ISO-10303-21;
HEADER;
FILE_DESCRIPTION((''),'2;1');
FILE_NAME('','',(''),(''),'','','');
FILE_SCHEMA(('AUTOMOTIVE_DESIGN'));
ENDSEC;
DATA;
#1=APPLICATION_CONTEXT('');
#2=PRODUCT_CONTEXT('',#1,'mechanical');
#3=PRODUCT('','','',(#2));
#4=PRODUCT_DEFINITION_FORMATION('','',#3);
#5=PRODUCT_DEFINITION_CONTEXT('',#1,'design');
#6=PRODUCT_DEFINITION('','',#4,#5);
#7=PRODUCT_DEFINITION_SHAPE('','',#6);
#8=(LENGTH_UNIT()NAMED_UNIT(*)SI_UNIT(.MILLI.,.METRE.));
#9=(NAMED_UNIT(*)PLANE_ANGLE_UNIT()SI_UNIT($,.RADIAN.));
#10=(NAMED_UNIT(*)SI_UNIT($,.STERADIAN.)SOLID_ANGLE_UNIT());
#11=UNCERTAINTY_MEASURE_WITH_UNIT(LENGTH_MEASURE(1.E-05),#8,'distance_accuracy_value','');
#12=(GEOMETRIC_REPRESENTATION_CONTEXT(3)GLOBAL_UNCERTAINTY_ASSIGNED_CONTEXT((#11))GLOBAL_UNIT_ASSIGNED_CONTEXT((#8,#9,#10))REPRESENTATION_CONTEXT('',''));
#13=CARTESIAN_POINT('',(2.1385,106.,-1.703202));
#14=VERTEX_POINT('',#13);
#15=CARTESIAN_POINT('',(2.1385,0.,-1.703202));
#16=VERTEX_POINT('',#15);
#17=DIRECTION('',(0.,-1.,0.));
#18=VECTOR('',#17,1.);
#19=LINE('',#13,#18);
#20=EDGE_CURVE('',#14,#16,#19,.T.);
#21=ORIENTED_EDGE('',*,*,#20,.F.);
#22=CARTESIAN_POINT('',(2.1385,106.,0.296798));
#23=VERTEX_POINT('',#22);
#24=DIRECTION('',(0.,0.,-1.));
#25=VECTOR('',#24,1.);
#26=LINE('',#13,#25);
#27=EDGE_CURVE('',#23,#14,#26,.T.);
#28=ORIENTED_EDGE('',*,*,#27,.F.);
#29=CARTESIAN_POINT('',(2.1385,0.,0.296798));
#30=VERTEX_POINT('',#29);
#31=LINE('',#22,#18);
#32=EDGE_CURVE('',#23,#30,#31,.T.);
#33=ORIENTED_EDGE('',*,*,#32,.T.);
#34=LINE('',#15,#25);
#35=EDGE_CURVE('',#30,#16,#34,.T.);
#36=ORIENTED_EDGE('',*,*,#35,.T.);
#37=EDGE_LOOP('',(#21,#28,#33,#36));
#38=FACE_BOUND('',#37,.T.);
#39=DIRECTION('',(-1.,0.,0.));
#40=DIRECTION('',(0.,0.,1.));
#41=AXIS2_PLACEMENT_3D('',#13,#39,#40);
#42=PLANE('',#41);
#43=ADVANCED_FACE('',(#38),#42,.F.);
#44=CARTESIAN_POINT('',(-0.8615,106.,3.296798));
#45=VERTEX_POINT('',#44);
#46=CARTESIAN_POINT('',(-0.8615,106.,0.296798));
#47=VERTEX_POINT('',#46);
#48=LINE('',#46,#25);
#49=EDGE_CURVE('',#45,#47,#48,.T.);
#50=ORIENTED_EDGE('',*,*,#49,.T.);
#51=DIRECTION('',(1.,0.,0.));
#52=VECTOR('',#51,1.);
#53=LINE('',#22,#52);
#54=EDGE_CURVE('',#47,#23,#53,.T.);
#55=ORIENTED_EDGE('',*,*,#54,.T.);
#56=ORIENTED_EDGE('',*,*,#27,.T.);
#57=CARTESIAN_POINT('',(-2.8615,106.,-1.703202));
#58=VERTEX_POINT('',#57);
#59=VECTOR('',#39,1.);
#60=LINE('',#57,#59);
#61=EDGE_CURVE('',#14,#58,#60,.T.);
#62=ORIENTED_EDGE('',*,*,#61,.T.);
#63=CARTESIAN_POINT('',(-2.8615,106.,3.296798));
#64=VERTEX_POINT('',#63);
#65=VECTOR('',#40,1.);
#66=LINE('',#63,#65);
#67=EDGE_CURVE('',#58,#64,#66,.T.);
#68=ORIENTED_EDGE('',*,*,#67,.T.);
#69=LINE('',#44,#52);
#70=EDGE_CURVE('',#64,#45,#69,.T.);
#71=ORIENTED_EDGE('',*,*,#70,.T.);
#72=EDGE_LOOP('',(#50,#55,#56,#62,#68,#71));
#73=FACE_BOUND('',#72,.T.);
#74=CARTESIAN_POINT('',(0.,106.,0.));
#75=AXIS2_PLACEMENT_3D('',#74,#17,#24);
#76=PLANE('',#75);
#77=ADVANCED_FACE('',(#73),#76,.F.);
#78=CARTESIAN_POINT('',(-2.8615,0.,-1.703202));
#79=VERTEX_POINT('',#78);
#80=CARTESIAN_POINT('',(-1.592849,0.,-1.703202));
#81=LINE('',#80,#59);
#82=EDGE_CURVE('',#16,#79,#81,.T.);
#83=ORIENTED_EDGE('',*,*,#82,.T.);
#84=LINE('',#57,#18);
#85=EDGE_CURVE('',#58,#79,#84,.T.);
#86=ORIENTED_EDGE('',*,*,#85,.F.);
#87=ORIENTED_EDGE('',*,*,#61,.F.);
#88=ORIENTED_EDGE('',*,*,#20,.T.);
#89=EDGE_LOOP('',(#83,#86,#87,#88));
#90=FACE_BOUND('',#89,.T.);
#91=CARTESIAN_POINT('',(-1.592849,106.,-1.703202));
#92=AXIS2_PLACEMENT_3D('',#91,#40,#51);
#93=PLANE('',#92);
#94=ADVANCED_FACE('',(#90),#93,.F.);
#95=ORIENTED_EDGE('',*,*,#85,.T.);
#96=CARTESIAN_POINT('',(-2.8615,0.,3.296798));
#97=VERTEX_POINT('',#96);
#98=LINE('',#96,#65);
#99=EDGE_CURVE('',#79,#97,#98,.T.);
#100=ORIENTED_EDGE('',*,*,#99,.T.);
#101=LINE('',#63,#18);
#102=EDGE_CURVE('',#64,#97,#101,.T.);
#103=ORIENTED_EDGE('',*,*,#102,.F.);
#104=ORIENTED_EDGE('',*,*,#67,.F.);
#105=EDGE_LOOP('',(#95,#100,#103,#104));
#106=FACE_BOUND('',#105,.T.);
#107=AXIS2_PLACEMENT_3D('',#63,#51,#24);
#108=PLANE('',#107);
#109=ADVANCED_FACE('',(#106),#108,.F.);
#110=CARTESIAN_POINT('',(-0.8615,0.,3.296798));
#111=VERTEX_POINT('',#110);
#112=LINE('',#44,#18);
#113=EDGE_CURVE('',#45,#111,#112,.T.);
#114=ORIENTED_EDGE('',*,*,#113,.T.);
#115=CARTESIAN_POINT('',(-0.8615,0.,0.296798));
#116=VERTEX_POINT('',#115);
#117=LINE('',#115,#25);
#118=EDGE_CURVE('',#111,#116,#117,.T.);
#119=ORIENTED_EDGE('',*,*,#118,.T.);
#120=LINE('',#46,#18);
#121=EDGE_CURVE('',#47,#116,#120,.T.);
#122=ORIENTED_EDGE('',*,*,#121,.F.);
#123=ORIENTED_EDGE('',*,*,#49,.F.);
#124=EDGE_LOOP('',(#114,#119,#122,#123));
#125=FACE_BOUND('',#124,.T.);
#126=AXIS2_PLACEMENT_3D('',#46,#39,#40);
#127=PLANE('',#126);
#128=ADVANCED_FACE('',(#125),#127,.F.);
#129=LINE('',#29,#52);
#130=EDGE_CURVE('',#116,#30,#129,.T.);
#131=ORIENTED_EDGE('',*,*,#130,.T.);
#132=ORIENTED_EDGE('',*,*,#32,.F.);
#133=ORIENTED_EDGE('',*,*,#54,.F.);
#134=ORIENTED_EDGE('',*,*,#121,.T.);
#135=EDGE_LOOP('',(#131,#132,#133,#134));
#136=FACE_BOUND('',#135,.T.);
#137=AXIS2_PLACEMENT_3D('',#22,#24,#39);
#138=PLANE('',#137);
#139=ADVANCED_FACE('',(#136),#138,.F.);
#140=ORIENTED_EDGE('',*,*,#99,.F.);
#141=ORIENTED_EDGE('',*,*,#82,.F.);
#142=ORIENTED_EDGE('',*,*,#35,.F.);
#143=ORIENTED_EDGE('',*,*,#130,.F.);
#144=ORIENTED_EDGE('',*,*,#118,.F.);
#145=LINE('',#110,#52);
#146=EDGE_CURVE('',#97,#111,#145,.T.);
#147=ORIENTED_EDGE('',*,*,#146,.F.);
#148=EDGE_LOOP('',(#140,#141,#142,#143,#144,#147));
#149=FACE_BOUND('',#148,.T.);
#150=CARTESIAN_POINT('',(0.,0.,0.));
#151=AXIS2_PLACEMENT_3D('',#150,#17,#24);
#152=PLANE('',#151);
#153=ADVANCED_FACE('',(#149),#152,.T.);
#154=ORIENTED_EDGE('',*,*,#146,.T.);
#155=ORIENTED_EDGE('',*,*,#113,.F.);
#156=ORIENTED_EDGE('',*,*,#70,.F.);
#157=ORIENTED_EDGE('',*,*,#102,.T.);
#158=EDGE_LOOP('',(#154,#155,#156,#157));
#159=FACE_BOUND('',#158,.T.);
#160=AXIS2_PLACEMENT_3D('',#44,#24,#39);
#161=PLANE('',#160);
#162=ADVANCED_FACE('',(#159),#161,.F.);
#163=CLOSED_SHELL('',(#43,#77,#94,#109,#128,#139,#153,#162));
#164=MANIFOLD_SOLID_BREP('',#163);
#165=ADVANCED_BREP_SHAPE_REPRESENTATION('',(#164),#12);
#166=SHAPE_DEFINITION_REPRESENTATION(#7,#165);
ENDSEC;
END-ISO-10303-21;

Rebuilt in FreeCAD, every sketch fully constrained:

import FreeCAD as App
import Part
import Sketcher

V = App.Vector
Q = App.Units.Quantity

doc = App.newDocument("Part")
body = doc.addObject("PartDesign::Body", "Body")

sketch1 = body.newObject("Sketcher::SketchObject", "Sketch")
sketch1.AttachmentSupport = (doc.getObject("XZ_Plane"), [""])
sketch1.MapMode = "FlatFace"
sketch1.addGeometry([
    Part.LineSegment(V(2.1, -1.7, 0), V(-2.9, -1.7, 0)),
    Part.LineSegment(V(-2.9, -1.7, 0), V(-2.9, 3.3, 0)),
    Part.LineSegment(V(-2.9, 3.3, 0), V(-0.9, 3.3, 0)),
    Part.LineSegment(V(-0.9, 3.3, 0), V(-0.9, 0.3, 0)),
    Part.LineSegment(V(-0.9, 0.3, 0), V(2.1, 0.3, 0)),
    Part.LineSegment(V(2.1, 0.3, 0), V(2.1, -1.7, 0)),
], False)
sketch1.addConstraint([
    Sketcher.Constraint("Coincident", 0, 2, 1, 1),
    Sketcher.Constraint("Coincident", 1, 2, 2, 1),
    Sketcher.Constraint("Coincident", 2, 2, 3, 1),
    Sketcher.Constraint("Coincident", 3, 2, 4, 1),
    Sketcher.Constraint("Coincident", 4, 2, 5, 1),
    Sketcher.Constraint("Coincident", 5, 2, 0, 1),
    Sketcher.Constraint("Horizontal", 0),
    Sketcher.Constraint("Vertical", 1),
    Sketcher.Constraint("Horizontal", 2),
    Sketcher.Constraint("Vertical", 3),
    Sketcher.Constraint("Horizontal", 4),
    Sketcher.Constraint("Vertical", 5),
    Sketcher.Constraint("Equal", 0, 1),
    Sketcher.Constraint("Equal", 4, 3),
    Sketcher.Constraint("DistanceX", 0, 2, 0, 1, Q("5 mm")),
    Sketcher.Constraint("DistanceX", 2, 1, 2, 2, Q("2 mm")),
    Sketcher.Constraint("DistanceX", 0, 2, -1, 1, Q("2.8615 mm")),
    Sketcher.Constraint("DistanceY", 0, 2, -1, 1, Q("1.703202 mm")),
])
pad1 = body.newObject("PartDesign::Pad", "Pad")
pad1.Profile = sketch1
pad1.Length = 106
pad1.Reversed = True

doc.recompute()
